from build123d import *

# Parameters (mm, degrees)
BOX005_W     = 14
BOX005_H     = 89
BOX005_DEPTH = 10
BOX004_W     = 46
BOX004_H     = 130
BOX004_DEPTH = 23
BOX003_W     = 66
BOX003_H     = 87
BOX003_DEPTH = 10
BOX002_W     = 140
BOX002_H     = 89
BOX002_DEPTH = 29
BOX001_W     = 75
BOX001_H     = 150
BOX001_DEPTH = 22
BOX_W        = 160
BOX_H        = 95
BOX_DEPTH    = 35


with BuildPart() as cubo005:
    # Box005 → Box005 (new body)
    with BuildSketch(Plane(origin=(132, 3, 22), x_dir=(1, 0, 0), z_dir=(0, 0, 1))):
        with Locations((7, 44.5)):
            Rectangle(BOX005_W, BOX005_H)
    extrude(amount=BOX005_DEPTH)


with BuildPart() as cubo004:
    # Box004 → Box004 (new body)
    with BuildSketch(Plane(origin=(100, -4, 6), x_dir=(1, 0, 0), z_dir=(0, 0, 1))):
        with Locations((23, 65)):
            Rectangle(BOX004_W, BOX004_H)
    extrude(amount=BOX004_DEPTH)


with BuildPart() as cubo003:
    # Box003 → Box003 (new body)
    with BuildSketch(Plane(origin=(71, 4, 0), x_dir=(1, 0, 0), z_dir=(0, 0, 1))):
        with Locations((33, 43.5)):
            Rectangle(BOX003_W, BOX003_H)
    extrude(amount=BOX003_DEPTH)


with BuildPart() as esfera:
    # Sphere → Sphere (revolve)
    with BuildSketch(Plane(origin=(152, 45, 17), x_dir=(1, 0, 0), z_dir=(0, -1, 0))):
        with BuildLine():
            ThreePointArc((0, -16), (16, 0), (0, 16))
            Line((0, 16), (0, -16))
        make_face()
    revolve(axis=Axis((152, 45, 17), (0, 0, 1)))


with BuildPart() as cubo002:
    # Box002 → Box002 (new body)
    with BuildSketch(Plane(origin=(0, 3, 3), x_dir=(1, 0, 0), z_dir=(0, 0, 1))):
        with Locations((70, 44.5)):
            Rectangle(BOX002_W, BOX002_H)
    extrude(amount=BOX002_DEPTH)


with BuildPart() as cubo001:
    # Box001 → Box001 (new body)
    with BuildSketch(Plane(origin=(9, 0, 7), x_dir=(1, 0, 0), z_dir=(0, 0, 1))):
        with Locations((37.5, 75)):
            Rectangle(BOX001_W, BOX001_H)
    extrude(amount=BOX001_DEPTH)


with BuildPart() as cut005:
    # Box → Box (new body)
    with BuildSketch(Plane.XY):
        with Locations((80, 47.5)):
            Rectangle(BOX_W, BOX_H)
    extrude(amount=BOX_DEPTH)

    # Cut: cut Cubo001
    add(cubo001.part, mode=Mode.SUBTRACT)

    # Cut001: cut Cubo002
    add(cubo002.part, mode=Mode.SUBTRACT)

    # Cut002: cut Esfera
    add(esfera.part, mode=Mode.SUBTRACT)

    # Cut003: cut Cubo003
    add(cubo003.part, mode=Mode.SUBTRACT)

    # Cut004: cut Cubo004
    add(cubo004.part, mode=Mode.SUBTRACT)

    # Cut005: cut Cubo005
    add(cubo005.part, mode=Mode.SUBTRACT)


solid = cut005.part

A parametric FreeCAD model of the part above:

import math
import FreeCAD as App
import Part
import Sketcher

V = App.Vector

doc = App.newDocument("Part")
params = doc.addObject("Spreadsheet::Sheet", "Params")
for row, (alias, value) in enumerate([
    ("sketch1_width", "14 mm"),
    ("sketch1_height", "89 mm"),
    ("pad1_length", "10 mm"),
    ("sketch2_width", "46 mm"),
    ("sketch2_height", "130 mm"),
    ("pad2_length", "23 mm"),
    ("sketch3_width", "66 mm"),
    ("sketch3_height", "87 mm"),
    ("pad3_length", "10 mm"),
    ("sketch4_radius", "16 mm"),
    ("revolution_angle", "360 deg"),
    ("sketch5_width", "140 mm"),
    ("sketch5_height", "89 mm"),
    ("pad4_length", "29 mm"),
    ("sketch6_width", "75 mm"),
    ("sketch6_height", "150 mm"),
    ("pad5_length", "22 mm"),
    ("sketch7_width", "160 mm"),
    ("sketch7_height", "95 mm"),
    ("pad6_length", "35 mm"),
], start=1):
    params.set(f"A{row}", alias)
    params.set(f"B{row}", "=" + value)
    params.setAlias(f"B{row}", alias)

body = doc.addObject("PartDesign::Body", "Body")

# Sketch on XY plane
sketch1 = body.newObject("Sketcher::SketchObject", "Sketch")
sketch1.AttachmentSupport = (doc.getObject("XY_Plane"), [""])
sketch1.MapMode = "FlatFace"
sketch1.AttachmentOffset = App.Placement(V(0, 0, 22), App.Rotation())
sketch1.addGeometry([
    Part.LineSegment(V(132, 92, 0), V(132, 3, 0)),
    Part.LineSegment(V(132, 3, 0), V(146, 3, 0)),
    Part.LineSegment(V(146, 3, 0), V(146, 92, 0)),
    Part.LineSegment(V(146, 92, 0), V(132, 92, 0)),
], False)
sketch1.addConstraint([
    Sketcher.Constraint("Coincident", 0, 2, 1, 1),
    Sketcher.Constraint("Coincident", 1, 2, 2, 1),
    Sketcher.Constraint("Coincident", 2, 2, 3, 1),
    Sketcher.Constraint("Coincident", 3, 2, 0, 1),
    Sketcher.Constraint("Vertical", 0),
    Sketcher.Constraint("Horizontal", 1),
    Sketcher.Constraint("Vertical", 2),
    Sketcher.Constraint("Horizontal", 3),
    Sketcher.Constraint("DistanceX", 1, 1, 1, 2, 14.0),
    Sketcher.Constraint("DistanceY", 0, 2, 0, 1, 89.0),
    Sketcher.Constraint("DistanceX", -1, 1, 0, 2, 132.0),
    Sketcher.Constraint("DistanceY", -1, 1, 0, 2, 3.0),
])
sketch1.setExpression("Constraints[8]", "Params.sketch1_width")
sketch1.setExpression("Constraints[9]", "Params.sketch1_height")
pad1 = body.newObject("PartDesign::Pad", "Pad")
pad1.Profile = sketch1
pad1.setExpression("Length", "Params.pad1_length")
body2 = doc.addObject("PartDesign::Body", "Body001")

# Sketch on XY plane
sketch2 = body2.newObject("Sketcher::SketchObject", "Sketch001")
sketch2.AttachmentSupport = (doc.getObject("XY_Plane001"), [""])
sketch2.MapMode = "FlatFace"
sketch2.AttachmentOffset = App.Placement(V(0, 0, 6), App.Rotation())
sketch2.addGeometry([
    Part.LineSegment(V(100, 126, 0), V(100, -4, 0)),
    Part.LineSegment(V(100, -4, 0), V(146, -4, 0)),
    Part.LineSegment(V(146, -4, 0), V(146, 126, 0)),
    Part.LineSegment(V(146, 126, 0), V(100, 126, 0)),
], False)
sketch2.addConstraint([
    Sketcher.Constraint("Coincident", 0, 2, 1, 1),
    Sketcher.Constraint("Coincident", 1, 2, 2, 1),
    Sketcher.Constraint("Coincident", 2, 2, 3, 1),
    Sketcher.Constraint("Coincident", 3, 2, 0, 1),
    Sketcher.Constraint("Vertical", 0),
    Sketcher.Constraint("Horizontal", 1),
    Sketcher.Constraint("Vertical", 2),
    Sketcher.Constraint("Horizontal", 3),
    Sketcher.Constraint("DistanceX", 1, 1, 1, 2, 46.0),
    Sketcher.Constraint("DistanceY", 0, 2, 0, 1, 130.0),
    Sketcher.Constraint("DistanceX", -1, 1, 0, 2, 100.0),
    Sketcher.Constraint("DistanceY", 0, 2, -1, 1, 4.0),
])
sketch2.setExpression("Constraints[8]", "Params.sketch2_width")
sketch2.setExpression("Constraints[9]", "Params.sketch2_height")
pad2 = body2.newObject("PartDesign::Pad", "Pad001")
pad2.Profile = sketch2
pad2.setExpression("Length", "Params.pad2_length")
body3 = doc.addObject("PartDesign::Body", "Body002")

# Sketch on XY plane
sketch3 = body3.newObject("Sketcher::SketchObject", "Sketch002")
sketch3.AttachmentSupport = (doc.getObject("XY_Plane002"), [""])
sketch3.MapMode = "FlatFace"
sketch3.addGeometry([
    Part.LineSegment(V(71, 91, 0), V(71, 4, 0)),
    Part.LineSegment(V(71, 4, 0), V(137, 4, 0)),
    Part.LineSegment(V(137, 4, 0), V(137, 91, 0)),
    Part.LineSegment(V(137, 91, 0), V(71, 91, 0)),
], False)
sketch3.addConstraint([
    Sketcher.Constraint("Coincident", 0, 2, 1, 1),
    Sketcher.Constraint("Coincident", 1, 2, 2, 1),
    Sketcher.Constraint("Coincident", 2, 2, 3, 1),
    Sketcher.Constraint("Coincident", 3, 2, 0, 1),
    Sketcher.Constraint("Vertical", 0),
    Sketcher.Constraint("Horizontal", 1),
    Sketcher.Constraint("Vertical", 2),
    Sketcher.Constraint("Horizontal", 3),
    Sketcher.Constraint("DistanceX", 1, 1, 1, 2, 66.0),
    Sketcher.Constraint("DistanceY", 0, 2, 0, 1, 87.0),
    Sketcher.Constraint("DistanceX", -1, 1, 0, 2, 71.0),
    Sketcher.Constraint("DistanceY", -1, 1, 0, 2, 4.0),
])
sketch3.setExpression("Constraints[8]", "Params.sketch3_width")
sketch3.setExpression("Constraints[9]", "Params.sketch3_height")
pad3 = body3.newObject("PartDesign::Pad", "Pad002")
pad3.Profile = sketch3
pad3.setExpression("Length", "Params.pad3_length")
body4 = doc.addObject("PartDesign::Body", "Body003")

# Sketch on XZ plane
sketch4 = body4.newObject("Sketcher::SketchObject", "Sketch003")
sketch4.AttachmentSupport = (doc.getObject("XZ_Plane003"), [""])
sketch4.MapMode = "FlatFace"
sketch4.AttachmentOffset = App.Placement(V(0, 0, -45), App.Rotation())
sketch4.addGeometry([
    Part.ArcOfCircle(Part.Circle(V(152, 17, 0), V(0, 0, 1), 16), math.radians(-90), math.radians(90)),
    Part.LineSegment(V(152, 33, 0), V(152, 1, 0)),
], False)
sketch4.addGeometry(Part.LineSegment(V(152, 1, 0), V(152, 33, 0)), True)  # axis
sketch4.addConstraint([
    Sketcher.Constraint("Coincident", 0, 1, 1, 2),
    Sketcher.Constraint("Coincident", 1, 1, 0, 2),
    Sketcher.Constraint("Vertical", 1),
    Sketcher.Constraint("Vertical", 2),
    Sketcher.Constraint("Coincident", 2, 1, 0, 1),
    Sketcher.Constraint("Equal", 1, 2),
    Sketcher.Constraint("Radius", 0, 16.0),
    Sketcher.Constraint("DistanceX", -1, 1, 0, 3, 152.0),
    Sketcher.Constraint("DistanceY", -1, 1, 0, 3, 17.0),
    Sketcher.Constraint("DistanceX", -1, 1, 0, 1, 152.0),
])
sketch4.setExpression("Constraints[6]", "Params.sketch4_radius")
revolution = body4.newObject("PartDesign::Revolution", "Revolution")
revolution.Profile = sketch4
revolution.ReferenceAxis = (sketch4, ["Axis0"])
revolution.setExpression("Angle", "Params.revolution_angle")
body5 = doc.addObject("PartDesign::Body", "Body004")

# Sketch on XY plane
sketch5 = body5.newObject("Sketcher::SketchObject", "Sketch004")
sketch5.AttachmentSupport = (doc.getObject("XY_Plane004"), [""])
sketch5.MapMode = "FlatFace"
sketch5.AttachmentOffset = App.Placement(V(0, 0, 3), App.Rotation())
sketch5.addGeometry([
    Part.LineSegment(V(0, 92, 0), V(0, 3, 0)),
    Part.LineSegment(V(0, 3, 0), V(140, 3, 0)),
    Part.LineSegment(V(140, 3, 0), V(140, 92, 0)),
    Part.LineSegment(V(140, 92, 0), V(0, 92, 0)),
], False)
sketch5.addConstraint([
    Sketcher.Constraint("Coincident", 0, 2, 1, 1),
    Sketcher.Constraint("Coincident", 1, 2, 2, 1),
    Sketcher.Constraint("Coincident", 2, 2, 3, 1),
    Sketcher.Constraint("Coincident", 3, 2, 0, 1),
    Sketcher.Constraint("Vertical", 0),
    Sketcher.Constraint("Horizontal", 1),
    Sketcher.Constraint("Vertical", 2),
    Sketcher.Constraint("Horizontal", 3),
    Sketcher.Constraint("PointOnObject", 0, 2, -2),
    Sketcher.Constraint("DistanceX", 1, 1, 1, 2, 140.0),
    Sketcher.Constraint("DistanceY", 0, 2, 0, 1, 89.0),
    Sketcher.Constraint("DistanceY", -1, 1, 0, 2, 3.0),
])
sketch5.setExpression("Constraints[9]", "Params.sketch5_width")
sketch5.setExpression("Constraints[10]", "Params.sketch5_height")
pad4 = body5.newObject("PartDesign::Pad", "Pad003")
pad4.Profile = sketch5
pad4.setExpression("Length", "Params.pad4_length")
body6 = doc.addObject("PartDesign::Body", "Body005")

# Sketch on XY plane
sketch6 = body6.newObject("Sketcher::SketchObject", "Sketch005")
sketch6.AttachmentSupport = (doc.getObject("XY_Plane005"), [""])
sketch6.MapMode = "FlatFace"
sketch6.AttachmentOffset = App.Placement(V(0, 0, 7), App.Rotation())
sketch6.addGeometry([
    Part.LineSegment(V(9, 150, 0), V(9, 0, 0)),
    Part.LineSegment(V(9, 0, 0), V(84, 0, 0)),
    Part.LineSegment(V(84, 0, 0), V(84, 150, 0)),
    Part.LineSegment(V(84, 150, 0), V(9, 150, 0)),
], False)
sketch6.addConstraint([
    Sketcher.Constraint("Coincident", 0, 2, 1, 1),
    Sketcher.Constraint("Coincident", 1, 2, 2, 1),
    Sketcher.Constraint("Coincident", 2, 2, 3, 1),
    Sketcher.Constraint("Coincident", 3, 2, 0, 1),
    Sketcher.Constraint("Vertical", 0),
    Sketcher.Constraint("Horizontal", 1),
    Sketcher.Constraint("Vertical", 2),
    Sketcher.Constraint("Horizontal", 3),
    Sketcher.Constraint("PointOnObject", 0, 2, -1),
    Sketcher.Constraint("DistanceX", 1, 1, 1, 2, 75.0),
    Sketcher.Constraint("DistanceY", 0, 2, 0, 1, 150.0),
    Sketcher.Constraint("DistanceX", -1, 1, 0, 2, 9.0),
])
sketch6.setExpression("Constraints[9]", "Params.sketch6_width")
sketch6.setExpression("Constraints[10]", "Params.sketch6_height")
pad5 = body6.newObject("PartDesign::Pad", "Pad004")
pad5.Profile = sketch6
pad5.setExpression("Length", "Params.pad5_length")
body7 = doc.addObject("PartDesign::Body", "Body006")

# Sketch on XY plane
sketch7 = body7.newObject("Sketcher::SketchObject", "Sketch006")
sketch7.AttachmentSupport = (doc.getObject("XY_Plane006"), [""])
sketch7.MapMode = "FlatFace"
sketch7.addGeometry([
    Part.LineSegment(V(0, 95, 0), V(0, 0, 0)),
    Part.LineSegment(V(0, 0, 0), V(160, 0, 0)),
    Part.LineSegment(V(160, 0, 0), V(160, 95, 0)),
    Part.LineSegment(V(160, 95, 0), V(0, 95, 0)),
], False)
sketch7.addConstraint([
    Sketcher.Constraint("Coincident", 0, 2, 1, 1),
    Sketcher.Constraint("Coincident", 1, 2, 2, 1),
    Sketcher.Constraint("Coincident", 2, 2, 3, 1),
    Sketcher.Constraint("Coincident", 3, 2, 0, 1),
    Sketcher.Constraint("Vertical", 0),
    Sketcher.Constraint("Horizontal", 1),
    Sketcher.Constraint("Vertical", 2),
    Sketcher.Constraint("Horizontal", 3),
    Sketcher.Constraint("Coincident", 0, 2, -1, 1),
    Sketcher.Constraint("DistanceX", 1, 1, 1, 2, 160.0),
    Sketcher.Constraint("DistanceY", 0, 2, 0, 1, 95.0),
])
sketch7.setExpression("Constraints[9]", "Params.sketch7_width")
sketch7.setExpression("Constraints[10]", "Params.sketch7_height")
pad6 = body7.newObject("PartDesign::Pad", "Pad005")
pad6.Profile = sketch7
pad6.setExpression("Length", "Params.pad6_length")
doc.recompute()

boolean = body7.newObject("PartDesign::Boolean", "Boolean")
boolean.Type = "Cut"
boolean.addObjects([body6])
doc.recompute()

boolean2 = body7.newObject("PartDesign::Boolean", "Boolean001")
boolean2.Type = "Cut"
boolean2.addObjects([body5])
doc.recompute()

boolean3 = body7.newObject("PartDesign::Boolean", "Boolean002")
boolean3.Type = "Cut"
boolean3.addObjects([body4])
doc.recompute()

boolean4 = body7.newObject("PartDesign::Boolean", "Boolean003")
boolean4.Type = "Cut"
boolean4.addObjects([body3])
doc.recompute()

boolean5 = body7.newObject("PartDesign::Boolean", "Boolean004")
boolean5.Type = "Cut"
boolean5.addObjects([body2])
doc.recompute()

boolean6 = body7.newObject("PartDesign::Boolean", "Boolean005")
boolean6.Type = "Cut"
boolean6.addObjects([body])

doc.recompute()
